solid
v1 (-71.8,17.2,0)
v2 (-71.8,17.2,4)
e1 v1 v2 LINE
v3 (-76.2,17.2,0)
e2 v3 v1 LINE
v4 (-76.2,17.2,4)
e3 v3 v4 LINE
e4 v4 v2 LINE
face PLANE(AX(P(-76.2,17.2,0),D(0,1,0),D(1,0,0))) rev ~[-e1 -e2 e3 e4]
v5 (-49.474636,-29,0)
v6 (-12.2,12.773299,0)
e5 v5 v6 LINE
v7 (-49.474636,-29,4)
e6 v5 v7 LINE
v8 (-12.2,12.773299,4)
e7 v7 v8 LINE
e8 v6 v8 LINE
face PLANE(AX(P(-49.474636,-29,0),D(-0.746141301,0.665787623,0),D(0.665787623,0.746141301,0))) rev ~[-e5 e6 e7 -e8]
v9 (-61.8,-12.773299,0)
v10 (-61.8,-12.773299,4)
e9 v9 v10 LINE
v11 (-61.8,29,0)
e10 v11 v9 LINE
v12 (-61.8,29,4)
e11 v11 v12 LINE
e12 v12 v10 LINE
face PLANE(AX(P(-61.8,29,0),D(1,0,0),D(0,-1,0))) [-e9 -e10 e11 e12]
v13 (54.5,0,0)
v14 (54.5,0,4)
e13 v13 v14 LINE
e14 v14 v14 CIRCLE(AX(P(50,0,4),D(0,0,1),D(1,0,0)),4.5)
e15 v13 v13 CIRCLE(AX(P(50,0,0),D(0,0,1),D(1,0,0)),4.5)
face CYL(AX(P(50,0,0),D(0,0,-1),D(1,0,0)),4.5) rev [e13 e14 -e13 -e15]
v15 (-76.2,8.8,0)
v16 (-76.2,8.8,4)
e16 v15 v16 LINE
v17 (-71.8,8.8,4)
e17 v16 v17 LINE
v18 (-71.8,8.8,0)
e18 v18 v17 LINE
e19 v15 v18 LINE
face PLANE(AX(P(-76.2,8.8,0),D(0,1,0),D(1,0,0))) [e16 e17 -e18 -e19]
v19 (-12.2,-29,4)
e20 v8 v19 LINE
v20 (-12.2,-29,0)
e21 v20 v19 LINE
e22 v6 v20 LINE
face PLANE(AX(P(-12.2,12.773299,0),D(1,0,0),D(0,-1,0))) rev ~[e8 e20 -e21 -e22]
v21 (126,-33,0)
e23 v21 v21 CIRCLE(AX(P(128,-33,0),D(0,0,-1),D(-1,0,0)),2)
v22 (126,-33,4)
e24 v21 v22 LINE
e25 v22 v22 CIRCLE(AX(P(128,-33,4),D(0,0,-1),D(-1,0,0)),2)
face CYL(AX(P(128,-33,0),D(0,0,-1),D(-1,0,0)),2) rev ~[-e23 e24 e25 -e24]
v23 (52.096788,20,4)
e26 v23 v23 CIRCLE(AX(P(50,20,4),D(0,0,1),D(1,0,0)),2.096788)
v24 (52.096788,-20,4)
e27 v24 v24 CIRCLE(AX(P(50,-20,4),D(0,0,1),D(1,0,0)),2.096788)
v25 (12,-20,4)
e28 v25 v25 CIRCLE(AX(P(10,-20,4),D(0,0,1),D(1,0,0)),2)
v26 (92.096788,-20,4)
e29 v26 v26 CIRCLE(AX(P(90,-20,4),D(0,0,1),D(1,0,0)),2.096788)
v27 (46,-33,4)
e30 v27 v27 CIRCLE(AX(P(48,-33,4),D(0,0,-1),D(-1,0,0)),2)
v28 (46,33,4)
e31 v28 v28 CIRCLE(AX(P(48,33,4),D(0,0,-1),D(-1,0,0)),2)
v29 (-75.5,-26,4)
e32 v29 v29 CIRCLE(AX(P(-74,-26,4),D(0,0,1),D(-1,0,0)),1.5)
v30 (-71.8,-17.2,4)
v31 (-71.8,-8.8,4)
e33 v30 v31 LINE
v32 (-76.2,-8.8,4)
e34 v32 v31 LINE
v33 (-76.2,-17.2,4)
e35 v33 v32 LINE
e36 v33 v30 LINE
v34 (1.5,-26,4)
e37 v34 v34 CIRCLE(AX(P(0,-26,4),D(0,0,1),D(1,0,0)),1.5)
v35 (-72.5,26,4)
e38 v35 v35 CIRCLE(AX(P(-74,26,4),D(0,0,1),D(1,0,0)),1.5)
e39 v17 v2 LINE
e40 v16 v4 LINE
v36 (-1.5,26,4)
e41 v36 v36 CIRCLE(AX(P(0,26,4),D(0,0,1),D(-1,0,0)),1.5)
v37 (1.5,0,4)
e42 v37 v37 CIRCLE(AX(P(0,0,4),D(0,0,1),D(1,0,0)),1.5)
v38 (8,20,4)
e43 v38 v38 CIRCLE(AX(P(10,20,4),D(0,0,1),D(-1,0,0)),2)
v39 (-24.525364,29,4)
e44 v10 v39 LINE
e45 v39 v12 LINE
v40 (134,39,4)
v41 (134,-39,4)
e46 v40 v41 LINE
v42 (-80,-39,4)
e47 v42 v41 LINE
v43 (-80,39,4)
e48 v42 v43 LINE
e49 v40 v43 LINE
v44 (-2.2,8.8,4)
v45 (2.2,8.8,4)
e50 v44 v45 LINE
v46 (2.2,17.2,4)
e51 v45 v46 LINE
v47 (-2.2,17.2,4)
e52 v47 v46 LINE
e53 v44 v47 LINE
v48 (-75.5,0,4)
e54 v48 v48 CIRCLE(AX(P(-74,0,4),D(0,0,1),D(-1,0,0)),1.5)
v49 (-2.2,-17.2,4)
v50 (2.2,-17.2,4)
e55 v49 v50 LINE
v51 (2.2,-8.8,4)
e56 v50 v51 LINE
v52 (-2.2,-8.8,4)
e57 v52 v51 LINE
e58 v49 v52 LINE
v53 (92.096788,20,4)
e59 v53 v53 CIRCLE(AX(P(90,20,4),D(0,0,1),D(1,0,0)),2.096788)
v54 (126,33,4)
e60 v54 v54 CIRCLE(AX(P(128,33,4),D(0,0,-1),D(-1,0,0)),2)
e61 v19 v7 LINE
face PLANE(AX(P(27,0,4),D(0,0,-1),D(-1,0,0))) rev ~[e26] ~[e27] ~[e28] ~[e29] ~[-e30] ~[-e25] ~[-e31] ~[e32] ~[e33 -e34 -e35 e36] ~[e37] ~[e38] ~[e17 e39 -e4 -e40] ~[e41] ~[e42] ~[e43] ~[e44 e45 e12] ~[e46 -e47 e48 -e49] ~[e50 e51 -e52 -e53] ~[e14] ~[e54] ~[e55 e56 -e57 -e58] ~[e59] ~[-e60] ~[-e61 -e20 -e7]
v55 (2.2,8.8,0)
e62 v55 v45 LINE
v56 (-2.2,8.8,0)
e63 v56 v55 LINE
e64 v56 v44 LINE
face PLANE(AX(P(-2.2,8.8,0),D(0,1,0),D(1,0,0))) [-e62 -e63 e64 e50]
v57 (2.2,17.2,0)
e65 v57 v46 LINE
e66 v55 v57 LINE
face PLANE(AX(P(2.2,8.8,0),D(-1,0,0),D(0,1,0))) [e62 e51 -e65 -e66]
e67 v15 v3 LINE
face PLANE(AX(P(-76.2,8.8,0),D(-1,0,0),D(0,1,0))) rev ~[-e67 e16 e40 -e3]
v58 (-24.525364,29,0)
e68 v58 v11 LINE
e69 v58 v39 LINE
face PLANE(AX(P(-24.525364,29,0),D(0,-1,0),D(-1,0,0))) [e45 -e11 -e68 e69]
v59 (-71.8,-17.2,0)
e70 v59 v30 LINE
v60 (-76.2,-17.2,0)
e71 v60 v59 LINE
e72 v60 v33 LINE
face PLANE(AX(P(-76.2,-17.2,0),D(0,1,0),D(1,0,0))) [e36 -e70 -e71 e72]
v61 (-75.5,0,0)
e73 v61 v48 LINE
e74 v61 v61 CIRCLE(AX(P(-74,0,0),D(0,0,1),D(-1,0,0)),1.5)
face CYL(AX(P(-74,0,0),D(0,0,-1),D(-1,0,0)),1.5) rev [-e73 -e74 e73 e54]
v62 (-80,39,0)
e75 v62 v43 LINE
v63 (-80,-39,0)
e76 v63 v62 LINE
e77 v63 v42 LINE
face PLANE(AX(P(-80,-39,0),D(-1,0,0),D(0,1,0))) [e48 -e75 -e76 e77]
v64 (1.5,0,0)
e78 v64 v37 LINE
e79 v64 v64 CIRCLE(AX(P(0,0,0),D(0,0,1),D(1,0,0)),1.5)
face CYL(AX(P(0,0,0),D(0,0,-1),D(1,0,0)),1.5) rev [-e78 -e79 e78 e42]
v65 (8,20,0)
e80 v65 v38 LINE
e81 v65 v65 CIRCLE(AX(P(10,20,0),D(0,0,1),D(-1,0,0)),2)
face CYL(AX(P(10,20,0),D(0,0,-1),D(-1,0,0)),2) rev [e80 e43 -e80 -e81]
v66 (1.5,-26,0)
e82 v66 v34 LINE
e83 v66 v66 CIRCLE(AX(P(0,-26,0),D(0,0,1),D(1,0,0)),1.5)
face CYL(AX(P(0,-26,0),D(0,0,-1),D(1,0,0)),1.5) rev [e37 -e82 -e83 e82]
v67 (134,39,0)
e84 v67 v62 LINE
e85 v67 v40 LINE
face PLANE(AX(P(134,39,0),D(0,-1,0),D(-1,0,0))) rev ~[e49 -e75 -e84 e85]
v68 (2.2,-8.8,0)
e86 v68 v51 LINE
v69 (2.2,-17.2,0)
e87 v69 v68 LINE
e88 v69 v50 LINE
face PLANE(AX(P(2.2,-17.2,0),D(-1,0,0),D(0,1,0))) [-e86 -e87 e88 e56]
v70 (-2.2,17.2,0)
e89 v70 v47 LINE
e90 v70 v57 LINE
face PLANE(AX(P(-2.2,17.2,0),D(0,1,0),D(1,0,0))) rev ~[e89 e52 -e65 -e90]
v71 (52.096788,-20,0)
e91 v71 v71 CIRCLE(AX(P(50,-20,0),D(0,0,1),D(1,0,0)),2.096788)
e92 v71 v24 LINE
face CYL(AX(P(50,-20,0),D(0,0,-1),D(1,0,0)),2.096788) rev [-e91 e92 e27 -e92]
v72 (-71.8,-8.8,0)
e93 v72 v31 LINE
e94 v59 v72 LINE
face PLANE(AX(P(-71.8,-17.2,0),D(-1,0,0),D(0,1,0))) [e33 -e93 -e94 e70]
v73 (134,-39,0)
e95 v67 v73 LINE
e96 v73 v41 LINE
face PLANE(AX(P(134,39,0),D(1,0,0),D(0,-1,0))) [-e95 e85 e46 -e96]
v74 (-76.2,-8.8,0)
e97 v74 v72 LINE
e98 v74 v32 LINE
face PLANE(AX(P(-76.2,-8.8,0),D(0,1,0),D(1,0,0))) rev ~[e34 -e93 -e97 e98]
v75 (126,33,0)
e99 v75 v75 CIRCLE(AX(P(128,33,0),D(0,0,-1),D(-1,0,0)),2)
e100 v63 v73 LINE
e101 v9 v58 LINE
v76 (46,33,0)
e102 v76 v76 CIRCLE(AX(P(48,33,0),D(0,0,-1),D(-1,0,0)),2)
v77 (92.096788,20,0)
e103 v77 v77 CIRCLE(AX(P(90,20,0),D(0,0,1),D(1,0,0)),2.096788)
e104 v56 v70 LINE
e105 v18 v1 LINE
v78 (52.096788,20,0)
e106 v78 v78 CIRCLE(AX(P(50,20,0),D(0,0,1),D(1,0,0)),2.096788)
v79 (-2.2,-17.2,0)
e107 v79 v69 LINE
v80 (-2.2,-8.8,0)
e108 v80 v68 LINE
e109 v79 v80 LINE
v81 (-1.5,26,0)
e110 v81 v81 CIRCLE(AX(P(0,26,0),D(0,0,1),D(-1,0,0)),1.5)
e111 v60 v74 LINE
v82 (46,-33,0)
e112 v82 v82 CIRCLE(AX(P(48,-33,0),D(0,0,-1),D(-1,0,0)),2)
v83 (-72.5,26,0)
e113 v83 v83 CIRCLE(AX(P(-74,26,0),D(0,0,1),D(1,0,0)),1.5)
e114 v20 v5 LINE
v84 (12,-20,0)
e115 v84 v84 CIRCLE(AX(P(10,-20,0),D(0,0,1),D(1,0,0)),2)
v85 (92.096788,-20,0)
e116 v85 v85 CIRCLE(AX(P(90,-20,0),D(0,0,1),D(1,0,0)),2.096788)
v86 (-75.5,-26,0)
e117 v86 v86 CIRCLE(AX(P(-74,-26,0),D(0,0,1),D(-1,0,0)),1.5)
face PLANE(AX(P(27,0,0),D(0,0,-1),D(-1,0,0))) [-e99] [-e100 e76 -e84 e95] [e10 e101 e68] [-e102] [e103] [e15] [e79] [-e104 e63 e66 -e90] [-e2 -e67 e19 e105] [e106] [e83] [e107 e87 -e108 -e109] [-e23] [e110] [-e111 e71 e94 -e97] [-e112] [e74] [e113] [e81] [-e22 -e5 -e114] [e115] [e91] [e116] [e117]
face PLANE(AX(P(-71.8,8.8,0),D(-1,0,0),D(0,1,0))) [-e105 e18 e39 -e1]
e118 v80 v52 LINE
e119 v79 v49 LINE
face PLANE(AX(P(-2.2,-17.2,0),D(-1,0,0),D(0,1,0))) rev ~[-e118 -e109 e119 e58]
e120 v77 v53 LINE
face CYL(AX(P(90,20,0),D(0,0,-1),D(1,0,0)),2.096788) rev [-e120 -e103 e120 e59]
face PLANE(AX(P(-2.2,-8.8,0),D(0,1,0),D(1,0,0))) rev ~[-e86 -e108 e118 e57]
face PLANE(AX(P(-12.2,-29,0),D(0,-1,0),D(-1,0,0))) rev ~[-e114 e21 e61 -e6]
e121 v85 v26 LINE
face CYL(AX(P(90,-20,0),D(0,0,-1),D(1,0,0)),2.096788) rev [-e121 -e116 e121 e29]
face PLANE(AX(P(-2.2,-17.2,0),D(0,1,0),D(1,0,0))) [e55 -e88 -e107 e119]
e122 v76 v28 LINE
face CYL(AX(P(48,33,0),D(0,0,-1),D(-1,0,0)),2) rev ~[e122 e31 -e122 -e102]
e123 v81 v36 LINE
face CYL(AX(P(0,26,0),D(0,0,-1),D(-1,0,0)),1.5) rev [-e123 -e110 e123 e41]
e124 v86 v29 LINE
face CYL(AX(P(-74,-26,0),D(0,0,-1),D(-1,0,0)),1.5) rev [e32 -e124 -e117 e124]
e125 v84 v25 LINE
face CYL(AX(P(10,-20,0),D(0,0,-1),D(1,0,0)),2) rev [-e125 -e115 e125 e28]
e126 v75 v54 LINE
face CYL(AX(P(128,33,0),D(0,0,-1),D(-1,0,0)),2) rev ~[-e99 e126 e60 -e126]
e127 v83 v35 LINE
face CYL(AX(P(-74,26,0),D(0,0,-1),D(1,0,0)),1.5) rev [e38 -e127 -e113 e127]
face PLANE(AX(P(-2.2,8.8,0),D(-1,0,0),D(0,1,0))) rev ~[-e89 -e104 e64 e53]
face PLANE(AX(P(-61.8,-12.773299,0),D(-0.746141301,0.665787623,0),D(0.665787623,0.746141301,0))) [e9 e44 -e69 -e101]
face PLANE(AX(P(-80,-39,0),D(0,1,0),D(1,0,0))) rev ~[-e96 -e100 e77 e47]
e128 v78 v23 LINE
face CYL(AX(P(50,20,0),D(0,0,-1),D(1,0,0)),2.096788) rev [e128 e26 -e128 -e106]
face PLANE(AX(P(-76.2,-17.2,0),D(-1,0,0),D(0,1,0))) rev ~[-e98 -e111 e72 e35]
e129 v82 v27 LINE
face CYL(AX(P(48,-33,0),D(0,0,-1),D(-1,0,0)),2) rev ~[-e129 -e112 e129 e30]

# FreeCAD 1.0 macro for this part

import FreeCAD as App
import Part
import Sketcher
from FreeCAD import Vector

doc = App.newDocument("Part")
body = doc.addObject("PartDesign::Body", "Body")

sketch1 = body.newObject("Sketcher::SketchObject", "Sketch")
sketch1.AttachmentSupport = (doc.getObject("XY_Plane"), [""])
sketch1.MapMode = "FlatFace"
sketch1.addGeometry([
    Part.LineSegment(Vector(134, 39, 0), Vector(-80, 39, 0)),
    Part.LineSegment(Vector(-80, 39, 0), Vector(-80, -39, 0)),
    Part.LineSegment(Vector(-80, -39, 0), Vector(134, -39, 0)),
    Part.LineSegment(Vector(134, -39, 0), Vector(134, 39, 0)),
    Part.Circle(Vector(90, -20, 0), Vector(0, 0, 1), 2.1),
    Part.Circle(Vector(50, -20, 0), Vector(0, 0, 1), 2.1),
    Part.Circle(Vector(10, -20, 0), Vector(0, 0, 1), 2),
    Part.Circle(Vector(0, -26, 0), Vector(0, 0, 1), 1.5),
    Part.Circle(Vector(-74, -26, 0), Vector(0, 0, 1), 1.5),
    Part.LineSegment(Vector(-2.2, -17.2, 0), Vector(-2.2, -8.8, 0)),
    Part.LineSegment(Vector(-2.2, -8.8, 0), Vector(2.2, -8.8, 0)),
    Part.LineSegment(Vector(2.2, -8.8, 0), Vector(2.2, -17.2, 0)),
    Part.LineSegment(Vector(2.2, -17.2, 0), Vector(-2.2, -17.2, 0)),
    Part.LineSegment(Vector(-76.2, -17.2, 0), Vector(-76.2, -8.8, 0)),
    Part.LineSegment(Vector(-76.2, -8.8, 0), Vector(-71.8, -8.8, 0)),
    Part.LineSegment(Vector(-71.8, -8.8, 0), Vector(-71.8, -17.2, 0)),
    Part.LineSegment(Vector(-71.8, -17.2, 0), Vector(-76.2, -17.2, 0)),
    Part.Circle(Vector(50, 0, 0), Vector(0, 0, 1), 4.5),
    Part.Circle(Vector(90, 20, 0), Vector(0, 0, 1), 2.1),
    Part.Circle(Vector(50, 20, 0), Vector(0, 0, 1), 2.1),
    Part.Circle(Vector(10, 20, 0), Vector(0, 0, 1), 2),
    Part.Circle(Vector(0, 0, 0), Vector(0, 0, 1), 1.5),
    Part.LineSegment(Vector(-2.2, 8.8, 0), Vector(-2.2, 17.2, 0)),
    Part.LineSegment(Vector(-2.2, 17.2, 0), Vector(2.2, 17.2, 0)),
    Part.LineSegment(Vector(2.2, 17.2, 0), Vector(2.2, 8.8, 0)),
    Part.LineSegment(Vector(2.2, 8.8, 0), Vector(-2.2, 8.8, 0)),
    Part.Circle(Vector(-74, 0, 0), Vector(0, 0, 1), 1.5),
    Part.LineSegment(Vector(-76.2, 8.8, 0), Vector(-76.2, 17.2, 0)),
    Part.LineSegment(Vector(-76.2, 17.2, 0), Vector(-71.8, 17.2, 0)),
    Part.LineSegment(Vector(-71.8, 17.2, 0), Vector(-71.8, 8.8, 0)),
    Part.LineSegment(Vector(-71.8, 8.8, 0), Vector(-76.2, 8.8, 0)),
    Part.Circle(Vector(0, 26, 0), Vector(0, 0, 1), 1.5),
    Part.Circle(Vector(-74, 26, 0), Vector(0, 0, 1), 1.5),
], False)
sketch1.addConstraint([
    Sketcher.Constraint("Coincident", 0, 2, 1, 1),
    Sketcher.Constraint("Coincident", 1, 2, 2, 1),
    Sketcher.Constraint("Coincident", 2, 2, 3, 1),
    Sketcher.Constraint("Coincident", 3, 2, 0, 1),
    Sketcher.Constraint("Coincident", 9, 2, 10, 1),
    Sketcher.Constraint("Coincident", 10, 2, 11, 1),
    Sketcher.Constraint("Coincident", 11, 2, 12, 1),
    Sketcher.Constraint("Coincident", 12, 2, 9, 1),
    Sketcher.Constraint("Coincident", 13, 2, 14, 1),
    Sketcher.Constraint("Coincident", 14, 2, 15, 1),
    Sketcher.Constraint("Coincident", 15, 2, 16, 1),
    Sketcher.Constraint("Coincident", 16, 2, 13, 1),
    Sketcher.Constraint("Coincident", 22, 2, 23, 1),
    Sketcher.Constraint("Coincident", 23, 2, 24, 1),
    Sketcher.Constraint("Coincident", 24, 2, 25, 1),
    Sketcher.Constraint("Coincident", 25, 2, 22, 1),
    Sketcher.Constraint("Coincident", 27, 2, 28, 1),
    Sketcher.Constraint("Coincident", 28, 2, 29, 1),
    Sketcher.Constraint("Coincident", 29, 2, 30, 1),
    Sketcher.Constraint("Coincident", 30, 2, 27, 1),
    Sketcher.Constraint("Horizontal", 0),
    Sketcher.Constraint("Vertical", 1),
    Sketcher.Constraint("Horizontal", 2),
    Sketcher.Constraint("Vertical", 3),
    Sketcher.Constraint("Vertical", 9),
    Sketcher.Constraint("Horizontal", 10),
    Sketcher.Constraint("Vertical", 11),
    Sketcher.Constraint("Horizontal", 12),
    Sketcher.Constraint("Vertical", 13),
    Sketcher.Constraint("Horizontal", 14),
    Sketcher.Constraint("Vertical", 15),
    Sketcher.Constraint("Horizontal", 16),
    Sketcher.Constraint("Vertical", 22),
    Sketcher.Constraint("Horizontal", 23),
    Sketcher.Constraint("Vertical", 24),
    Sketcher.Constraint("Horizontal", 25),
    Sketcher.Constraint("Vertical", 27),
    Sketcher.Constraint("Horizontal", 28),
    Sketcher.Constraint("Vertical", 29),
    Sketcher.Constraint("Horizontal", 30),
    Sketcher.Constraint("Coincident", 21, 3, -1, 1),
    Sketcher.Constraint("Equal", 4, 5),
    Sketcher.Constraint("Equal", 7, 8),
    Sketcher.Constraint("Equal", 5, 18),
    Sketcher.Constraint("Equal", 18, 19),
    Sketcher.Constraint("Equal", 6, 20),
    Sketcher.Constraint("Equal", 8, 21),
    Sketcher.Constraint("Equal", 21, 26),
    Sketcher.Constraint("Equal", 26, 31),
    Sketcher.Constraint("Equal", 31, 32),
    Sketcher.Constraint("Symmetric", 7, 3, 31, 3, -1, 1),
    Sketcher.Constraint("Symmetric", 11, 2, 22, 2, -1, 1),
    Sketcher.Constraint("Symmetric", 9, 2, 24, 2, -1, 1),
    Sketcher.Constraint("Symmetric", 4, 3, 18, 3, -1),
    Sketcher.Constraint("Symmetric", 5, 3, 19, 3, -1),
    Sketcher.Constraint("Symmetric", 6, 3, 20, 3, -1),
    Sketcher.Constraint("Symmetric", 8, 3, 32, 3, -1),
    Sketcher.Constraint("Symmetric", 16, 2, 27, 2, -1),
    Sketcher.Constraint("Symmetric", 14, 2, 29, 2, -1),
    Sketcher.Constraint("PointOnObject", 7, 3, -2),
    Sketcher.Constraint("PointOnObject", 17, 3, -1),
    Sketcher.Constraint("PointOnObject", 26, 3, -1),
    Sketcher.Constraint("Horizontal", 4, 3, 5, 3),
    Sketcher.Constraint("Horizontal", 5, 3, 6, 3),
    Sketcher.Constraint("Horizontal", 7, 3, 8, 3),
    Sketcher.Constraint("Horizontal", 10, 2, 13, 2),
    Sketcher.Constraint("Horizontal", 12, 2, 15, 2),
    Sketcher.Constraint("Vertical", 5, 3, 17, 3),
    Sketcher.Constraint("Vertical", 8, 3, 26, 3),
    Sketcher.Constraint("Vertical", 12, 2, 22, 2),
    Sketcher.Constraint("Equal", 12, 14),
    Sketcher.Constraint("Diameter", 6, 4.0),
    Sketcher.Constraint("Diameter", 7, 3.0),
    Sketcher.Constraint("Diameter", 17, 9.0),
    Sketcher.Constraint("DistanceX", 0, 2, 0, 1, 214.0),
    Sketcher.Constraint("DistanceY", 1, 2, 1, 1, 78.0),
    Sketcher.Constraint("DistanceX", 10, 1, 10, 2, 4.4),
    Sketcher.Constraint("DistanceY", 9, 1, 9, 2, 8.4),
    Sketcher.Constraint("DistanceX", -1, 1, 4, 3, 90.0),
    Sketcher.Constraint("DistanceY", 4, 3, -1, 1, 20.0),
    Sketcher.Constraint("DistanceX", -1, 1, 5, 3, 50.0),
    Sketcher.Constraint("DistanceX", -1, 1, 6, 3, 10.0),
    Sketcher.Constraint("DistanceY", 7, 3, -1, 1, 26.0),
    Sketcher.Constraint("DistanceX", 8, 3, -1, 1, 74.0),
    Sketcher.Constraint("DistanceX", 0, 2, -1, 1, 80.0),
    Sketcher.Constraint("DistanceY", -1, 1, 0, 2, 39.0),
    Sketcher.Constraint("DistanceY", 9, 2, 22, 2, 26.0),
    Sketcher.Constraint("DistanceX", 13, 2, -1, 1, 76.2),
    Sketcher.Constraint("Diameter", 4, 4.193577),
])
pad1 = body.newObject("PartDesign::Pad", "Pad")
pad1.Profile = sketch1
pad1.Length = 4

sketch2 = body.newObject("Sketcher::SketchObject", "Sketch001")
sketch2.AttachmentSupport = (doc.getObject("XY_Plane"), [""])
sketch2.MapMode = "FlatFace"
sketch2.addGeometry([
    Part.Circle(Vector(128, -33, 0), Vector(0, 0, 1), 2),
    Part.Circle(Vector(48, -33, 0), Vector(0, 0, 1), 2),
    Part.Circle(Vector(48, 33, 0), Vector(0, 0, 1), 2),
    Part.Circle(Vector(128, 33, 0), Vector(0, 0, 1), 2),
    Part.LineSegment(Vector(-24.5, 29, 0), Vector(-61.8, -12.8, 0)),
    Part.LineSegment(Vector(-61.8, -12.8, 0), Vector(-61.8, 29, 0)),
    Part.LineSegment(Vector(-61.8, 29, 0), Vector(-24.5, 29, 0)),
    Part.LineSegment(Vector(-12.2, -29, 0), Vector(-49.5, -29, 0)),
    Part.LineSegment(Vector(-49.5, -29, 0), Vector(-12.2, 12.8, 0)),
    Part.LineSegment(Vector(-12.2, 12.8, 0), Vector(-12.2, -29, 0)),
], False)
sketch2.addConstraint([
    Sketcher.Constraint("Coincident", 4, 2, 5, 1),
    Sketcher.Constraint("Coincident", 5, 2, 6, 1),
    Sketcher.Constraint("Coincident", 6, 2, 4, 1),
    Sketcher.Constraint("Coincident", 7, 2, 8, 1),
    Sketcher.Constraint("Coincident", 8, 2, 9, 1),
    Sketcher.Constraint("Coincident", 9, 2, 7, 1),
    Sketcher.Constraint("Vertical", 5),
    Sketcher.Constraint("Horizontal", 6),
    Sketcher.Constraint("Horizontal", 7),
    Sketcher.Constraint("Vertical", 9),
    Sketcher.Constraint("Equal", 0, 1),
    Sketcher.Constraint("Equal", 1, 2),
    Sketcher.Constraint("Equal", 2, 3),
    Sketcher.Constraint("Symmetric", 1, 3, 2, 3, -1),
    Sketcher.Constraint("Symmetric", 0, 3, 3, 3, -1),
    Sketcher.Constraint("Parallel", 4, 8),
    Sketcher.Constraint("Horizontal", 0, 3, 1, 3),
    Sketcher.Constraint("Equal", 6, 7),
    Sketcher.Constraint("Diameter", 0, 4.0),
    Sketcher.Constraint("DistanceX", -1, 1, 0, 3, 128.0),
    Sketcher.Constraint("DistanceY", 0, 3, -1, 1, 33.0),
    Sketcher.Constraint("DistanceX", -1, 1, 1, 3, 48.0),
    Sketcher.Constraint("DistanceY", -1, 1, 5, 2, 29.0),
    Sketcher.Constraint("DistanceY", 7, 2, -1, 1, 29.0),
    Sketcher.Constraint("DistanceX", 4, 2, -1, 1, 61.8),
    Sketcher.Constraint("DistanceX", 8, 2, -1, 1, 12.2),
    Sketcher.Constraint("DistanceY", 5, 1, 5, 2, 41.773299),
    Sketcher.Constraint("DistanceX", 6, 1, 6, 2, 37.274636),
])
pocket1 = body.newObject("PartDesign::Pocket", "Pocket")
pocket1.Profile = sketch2
pocket1.Length = 10
pocket1.Reversed = True

doc.recompute()
